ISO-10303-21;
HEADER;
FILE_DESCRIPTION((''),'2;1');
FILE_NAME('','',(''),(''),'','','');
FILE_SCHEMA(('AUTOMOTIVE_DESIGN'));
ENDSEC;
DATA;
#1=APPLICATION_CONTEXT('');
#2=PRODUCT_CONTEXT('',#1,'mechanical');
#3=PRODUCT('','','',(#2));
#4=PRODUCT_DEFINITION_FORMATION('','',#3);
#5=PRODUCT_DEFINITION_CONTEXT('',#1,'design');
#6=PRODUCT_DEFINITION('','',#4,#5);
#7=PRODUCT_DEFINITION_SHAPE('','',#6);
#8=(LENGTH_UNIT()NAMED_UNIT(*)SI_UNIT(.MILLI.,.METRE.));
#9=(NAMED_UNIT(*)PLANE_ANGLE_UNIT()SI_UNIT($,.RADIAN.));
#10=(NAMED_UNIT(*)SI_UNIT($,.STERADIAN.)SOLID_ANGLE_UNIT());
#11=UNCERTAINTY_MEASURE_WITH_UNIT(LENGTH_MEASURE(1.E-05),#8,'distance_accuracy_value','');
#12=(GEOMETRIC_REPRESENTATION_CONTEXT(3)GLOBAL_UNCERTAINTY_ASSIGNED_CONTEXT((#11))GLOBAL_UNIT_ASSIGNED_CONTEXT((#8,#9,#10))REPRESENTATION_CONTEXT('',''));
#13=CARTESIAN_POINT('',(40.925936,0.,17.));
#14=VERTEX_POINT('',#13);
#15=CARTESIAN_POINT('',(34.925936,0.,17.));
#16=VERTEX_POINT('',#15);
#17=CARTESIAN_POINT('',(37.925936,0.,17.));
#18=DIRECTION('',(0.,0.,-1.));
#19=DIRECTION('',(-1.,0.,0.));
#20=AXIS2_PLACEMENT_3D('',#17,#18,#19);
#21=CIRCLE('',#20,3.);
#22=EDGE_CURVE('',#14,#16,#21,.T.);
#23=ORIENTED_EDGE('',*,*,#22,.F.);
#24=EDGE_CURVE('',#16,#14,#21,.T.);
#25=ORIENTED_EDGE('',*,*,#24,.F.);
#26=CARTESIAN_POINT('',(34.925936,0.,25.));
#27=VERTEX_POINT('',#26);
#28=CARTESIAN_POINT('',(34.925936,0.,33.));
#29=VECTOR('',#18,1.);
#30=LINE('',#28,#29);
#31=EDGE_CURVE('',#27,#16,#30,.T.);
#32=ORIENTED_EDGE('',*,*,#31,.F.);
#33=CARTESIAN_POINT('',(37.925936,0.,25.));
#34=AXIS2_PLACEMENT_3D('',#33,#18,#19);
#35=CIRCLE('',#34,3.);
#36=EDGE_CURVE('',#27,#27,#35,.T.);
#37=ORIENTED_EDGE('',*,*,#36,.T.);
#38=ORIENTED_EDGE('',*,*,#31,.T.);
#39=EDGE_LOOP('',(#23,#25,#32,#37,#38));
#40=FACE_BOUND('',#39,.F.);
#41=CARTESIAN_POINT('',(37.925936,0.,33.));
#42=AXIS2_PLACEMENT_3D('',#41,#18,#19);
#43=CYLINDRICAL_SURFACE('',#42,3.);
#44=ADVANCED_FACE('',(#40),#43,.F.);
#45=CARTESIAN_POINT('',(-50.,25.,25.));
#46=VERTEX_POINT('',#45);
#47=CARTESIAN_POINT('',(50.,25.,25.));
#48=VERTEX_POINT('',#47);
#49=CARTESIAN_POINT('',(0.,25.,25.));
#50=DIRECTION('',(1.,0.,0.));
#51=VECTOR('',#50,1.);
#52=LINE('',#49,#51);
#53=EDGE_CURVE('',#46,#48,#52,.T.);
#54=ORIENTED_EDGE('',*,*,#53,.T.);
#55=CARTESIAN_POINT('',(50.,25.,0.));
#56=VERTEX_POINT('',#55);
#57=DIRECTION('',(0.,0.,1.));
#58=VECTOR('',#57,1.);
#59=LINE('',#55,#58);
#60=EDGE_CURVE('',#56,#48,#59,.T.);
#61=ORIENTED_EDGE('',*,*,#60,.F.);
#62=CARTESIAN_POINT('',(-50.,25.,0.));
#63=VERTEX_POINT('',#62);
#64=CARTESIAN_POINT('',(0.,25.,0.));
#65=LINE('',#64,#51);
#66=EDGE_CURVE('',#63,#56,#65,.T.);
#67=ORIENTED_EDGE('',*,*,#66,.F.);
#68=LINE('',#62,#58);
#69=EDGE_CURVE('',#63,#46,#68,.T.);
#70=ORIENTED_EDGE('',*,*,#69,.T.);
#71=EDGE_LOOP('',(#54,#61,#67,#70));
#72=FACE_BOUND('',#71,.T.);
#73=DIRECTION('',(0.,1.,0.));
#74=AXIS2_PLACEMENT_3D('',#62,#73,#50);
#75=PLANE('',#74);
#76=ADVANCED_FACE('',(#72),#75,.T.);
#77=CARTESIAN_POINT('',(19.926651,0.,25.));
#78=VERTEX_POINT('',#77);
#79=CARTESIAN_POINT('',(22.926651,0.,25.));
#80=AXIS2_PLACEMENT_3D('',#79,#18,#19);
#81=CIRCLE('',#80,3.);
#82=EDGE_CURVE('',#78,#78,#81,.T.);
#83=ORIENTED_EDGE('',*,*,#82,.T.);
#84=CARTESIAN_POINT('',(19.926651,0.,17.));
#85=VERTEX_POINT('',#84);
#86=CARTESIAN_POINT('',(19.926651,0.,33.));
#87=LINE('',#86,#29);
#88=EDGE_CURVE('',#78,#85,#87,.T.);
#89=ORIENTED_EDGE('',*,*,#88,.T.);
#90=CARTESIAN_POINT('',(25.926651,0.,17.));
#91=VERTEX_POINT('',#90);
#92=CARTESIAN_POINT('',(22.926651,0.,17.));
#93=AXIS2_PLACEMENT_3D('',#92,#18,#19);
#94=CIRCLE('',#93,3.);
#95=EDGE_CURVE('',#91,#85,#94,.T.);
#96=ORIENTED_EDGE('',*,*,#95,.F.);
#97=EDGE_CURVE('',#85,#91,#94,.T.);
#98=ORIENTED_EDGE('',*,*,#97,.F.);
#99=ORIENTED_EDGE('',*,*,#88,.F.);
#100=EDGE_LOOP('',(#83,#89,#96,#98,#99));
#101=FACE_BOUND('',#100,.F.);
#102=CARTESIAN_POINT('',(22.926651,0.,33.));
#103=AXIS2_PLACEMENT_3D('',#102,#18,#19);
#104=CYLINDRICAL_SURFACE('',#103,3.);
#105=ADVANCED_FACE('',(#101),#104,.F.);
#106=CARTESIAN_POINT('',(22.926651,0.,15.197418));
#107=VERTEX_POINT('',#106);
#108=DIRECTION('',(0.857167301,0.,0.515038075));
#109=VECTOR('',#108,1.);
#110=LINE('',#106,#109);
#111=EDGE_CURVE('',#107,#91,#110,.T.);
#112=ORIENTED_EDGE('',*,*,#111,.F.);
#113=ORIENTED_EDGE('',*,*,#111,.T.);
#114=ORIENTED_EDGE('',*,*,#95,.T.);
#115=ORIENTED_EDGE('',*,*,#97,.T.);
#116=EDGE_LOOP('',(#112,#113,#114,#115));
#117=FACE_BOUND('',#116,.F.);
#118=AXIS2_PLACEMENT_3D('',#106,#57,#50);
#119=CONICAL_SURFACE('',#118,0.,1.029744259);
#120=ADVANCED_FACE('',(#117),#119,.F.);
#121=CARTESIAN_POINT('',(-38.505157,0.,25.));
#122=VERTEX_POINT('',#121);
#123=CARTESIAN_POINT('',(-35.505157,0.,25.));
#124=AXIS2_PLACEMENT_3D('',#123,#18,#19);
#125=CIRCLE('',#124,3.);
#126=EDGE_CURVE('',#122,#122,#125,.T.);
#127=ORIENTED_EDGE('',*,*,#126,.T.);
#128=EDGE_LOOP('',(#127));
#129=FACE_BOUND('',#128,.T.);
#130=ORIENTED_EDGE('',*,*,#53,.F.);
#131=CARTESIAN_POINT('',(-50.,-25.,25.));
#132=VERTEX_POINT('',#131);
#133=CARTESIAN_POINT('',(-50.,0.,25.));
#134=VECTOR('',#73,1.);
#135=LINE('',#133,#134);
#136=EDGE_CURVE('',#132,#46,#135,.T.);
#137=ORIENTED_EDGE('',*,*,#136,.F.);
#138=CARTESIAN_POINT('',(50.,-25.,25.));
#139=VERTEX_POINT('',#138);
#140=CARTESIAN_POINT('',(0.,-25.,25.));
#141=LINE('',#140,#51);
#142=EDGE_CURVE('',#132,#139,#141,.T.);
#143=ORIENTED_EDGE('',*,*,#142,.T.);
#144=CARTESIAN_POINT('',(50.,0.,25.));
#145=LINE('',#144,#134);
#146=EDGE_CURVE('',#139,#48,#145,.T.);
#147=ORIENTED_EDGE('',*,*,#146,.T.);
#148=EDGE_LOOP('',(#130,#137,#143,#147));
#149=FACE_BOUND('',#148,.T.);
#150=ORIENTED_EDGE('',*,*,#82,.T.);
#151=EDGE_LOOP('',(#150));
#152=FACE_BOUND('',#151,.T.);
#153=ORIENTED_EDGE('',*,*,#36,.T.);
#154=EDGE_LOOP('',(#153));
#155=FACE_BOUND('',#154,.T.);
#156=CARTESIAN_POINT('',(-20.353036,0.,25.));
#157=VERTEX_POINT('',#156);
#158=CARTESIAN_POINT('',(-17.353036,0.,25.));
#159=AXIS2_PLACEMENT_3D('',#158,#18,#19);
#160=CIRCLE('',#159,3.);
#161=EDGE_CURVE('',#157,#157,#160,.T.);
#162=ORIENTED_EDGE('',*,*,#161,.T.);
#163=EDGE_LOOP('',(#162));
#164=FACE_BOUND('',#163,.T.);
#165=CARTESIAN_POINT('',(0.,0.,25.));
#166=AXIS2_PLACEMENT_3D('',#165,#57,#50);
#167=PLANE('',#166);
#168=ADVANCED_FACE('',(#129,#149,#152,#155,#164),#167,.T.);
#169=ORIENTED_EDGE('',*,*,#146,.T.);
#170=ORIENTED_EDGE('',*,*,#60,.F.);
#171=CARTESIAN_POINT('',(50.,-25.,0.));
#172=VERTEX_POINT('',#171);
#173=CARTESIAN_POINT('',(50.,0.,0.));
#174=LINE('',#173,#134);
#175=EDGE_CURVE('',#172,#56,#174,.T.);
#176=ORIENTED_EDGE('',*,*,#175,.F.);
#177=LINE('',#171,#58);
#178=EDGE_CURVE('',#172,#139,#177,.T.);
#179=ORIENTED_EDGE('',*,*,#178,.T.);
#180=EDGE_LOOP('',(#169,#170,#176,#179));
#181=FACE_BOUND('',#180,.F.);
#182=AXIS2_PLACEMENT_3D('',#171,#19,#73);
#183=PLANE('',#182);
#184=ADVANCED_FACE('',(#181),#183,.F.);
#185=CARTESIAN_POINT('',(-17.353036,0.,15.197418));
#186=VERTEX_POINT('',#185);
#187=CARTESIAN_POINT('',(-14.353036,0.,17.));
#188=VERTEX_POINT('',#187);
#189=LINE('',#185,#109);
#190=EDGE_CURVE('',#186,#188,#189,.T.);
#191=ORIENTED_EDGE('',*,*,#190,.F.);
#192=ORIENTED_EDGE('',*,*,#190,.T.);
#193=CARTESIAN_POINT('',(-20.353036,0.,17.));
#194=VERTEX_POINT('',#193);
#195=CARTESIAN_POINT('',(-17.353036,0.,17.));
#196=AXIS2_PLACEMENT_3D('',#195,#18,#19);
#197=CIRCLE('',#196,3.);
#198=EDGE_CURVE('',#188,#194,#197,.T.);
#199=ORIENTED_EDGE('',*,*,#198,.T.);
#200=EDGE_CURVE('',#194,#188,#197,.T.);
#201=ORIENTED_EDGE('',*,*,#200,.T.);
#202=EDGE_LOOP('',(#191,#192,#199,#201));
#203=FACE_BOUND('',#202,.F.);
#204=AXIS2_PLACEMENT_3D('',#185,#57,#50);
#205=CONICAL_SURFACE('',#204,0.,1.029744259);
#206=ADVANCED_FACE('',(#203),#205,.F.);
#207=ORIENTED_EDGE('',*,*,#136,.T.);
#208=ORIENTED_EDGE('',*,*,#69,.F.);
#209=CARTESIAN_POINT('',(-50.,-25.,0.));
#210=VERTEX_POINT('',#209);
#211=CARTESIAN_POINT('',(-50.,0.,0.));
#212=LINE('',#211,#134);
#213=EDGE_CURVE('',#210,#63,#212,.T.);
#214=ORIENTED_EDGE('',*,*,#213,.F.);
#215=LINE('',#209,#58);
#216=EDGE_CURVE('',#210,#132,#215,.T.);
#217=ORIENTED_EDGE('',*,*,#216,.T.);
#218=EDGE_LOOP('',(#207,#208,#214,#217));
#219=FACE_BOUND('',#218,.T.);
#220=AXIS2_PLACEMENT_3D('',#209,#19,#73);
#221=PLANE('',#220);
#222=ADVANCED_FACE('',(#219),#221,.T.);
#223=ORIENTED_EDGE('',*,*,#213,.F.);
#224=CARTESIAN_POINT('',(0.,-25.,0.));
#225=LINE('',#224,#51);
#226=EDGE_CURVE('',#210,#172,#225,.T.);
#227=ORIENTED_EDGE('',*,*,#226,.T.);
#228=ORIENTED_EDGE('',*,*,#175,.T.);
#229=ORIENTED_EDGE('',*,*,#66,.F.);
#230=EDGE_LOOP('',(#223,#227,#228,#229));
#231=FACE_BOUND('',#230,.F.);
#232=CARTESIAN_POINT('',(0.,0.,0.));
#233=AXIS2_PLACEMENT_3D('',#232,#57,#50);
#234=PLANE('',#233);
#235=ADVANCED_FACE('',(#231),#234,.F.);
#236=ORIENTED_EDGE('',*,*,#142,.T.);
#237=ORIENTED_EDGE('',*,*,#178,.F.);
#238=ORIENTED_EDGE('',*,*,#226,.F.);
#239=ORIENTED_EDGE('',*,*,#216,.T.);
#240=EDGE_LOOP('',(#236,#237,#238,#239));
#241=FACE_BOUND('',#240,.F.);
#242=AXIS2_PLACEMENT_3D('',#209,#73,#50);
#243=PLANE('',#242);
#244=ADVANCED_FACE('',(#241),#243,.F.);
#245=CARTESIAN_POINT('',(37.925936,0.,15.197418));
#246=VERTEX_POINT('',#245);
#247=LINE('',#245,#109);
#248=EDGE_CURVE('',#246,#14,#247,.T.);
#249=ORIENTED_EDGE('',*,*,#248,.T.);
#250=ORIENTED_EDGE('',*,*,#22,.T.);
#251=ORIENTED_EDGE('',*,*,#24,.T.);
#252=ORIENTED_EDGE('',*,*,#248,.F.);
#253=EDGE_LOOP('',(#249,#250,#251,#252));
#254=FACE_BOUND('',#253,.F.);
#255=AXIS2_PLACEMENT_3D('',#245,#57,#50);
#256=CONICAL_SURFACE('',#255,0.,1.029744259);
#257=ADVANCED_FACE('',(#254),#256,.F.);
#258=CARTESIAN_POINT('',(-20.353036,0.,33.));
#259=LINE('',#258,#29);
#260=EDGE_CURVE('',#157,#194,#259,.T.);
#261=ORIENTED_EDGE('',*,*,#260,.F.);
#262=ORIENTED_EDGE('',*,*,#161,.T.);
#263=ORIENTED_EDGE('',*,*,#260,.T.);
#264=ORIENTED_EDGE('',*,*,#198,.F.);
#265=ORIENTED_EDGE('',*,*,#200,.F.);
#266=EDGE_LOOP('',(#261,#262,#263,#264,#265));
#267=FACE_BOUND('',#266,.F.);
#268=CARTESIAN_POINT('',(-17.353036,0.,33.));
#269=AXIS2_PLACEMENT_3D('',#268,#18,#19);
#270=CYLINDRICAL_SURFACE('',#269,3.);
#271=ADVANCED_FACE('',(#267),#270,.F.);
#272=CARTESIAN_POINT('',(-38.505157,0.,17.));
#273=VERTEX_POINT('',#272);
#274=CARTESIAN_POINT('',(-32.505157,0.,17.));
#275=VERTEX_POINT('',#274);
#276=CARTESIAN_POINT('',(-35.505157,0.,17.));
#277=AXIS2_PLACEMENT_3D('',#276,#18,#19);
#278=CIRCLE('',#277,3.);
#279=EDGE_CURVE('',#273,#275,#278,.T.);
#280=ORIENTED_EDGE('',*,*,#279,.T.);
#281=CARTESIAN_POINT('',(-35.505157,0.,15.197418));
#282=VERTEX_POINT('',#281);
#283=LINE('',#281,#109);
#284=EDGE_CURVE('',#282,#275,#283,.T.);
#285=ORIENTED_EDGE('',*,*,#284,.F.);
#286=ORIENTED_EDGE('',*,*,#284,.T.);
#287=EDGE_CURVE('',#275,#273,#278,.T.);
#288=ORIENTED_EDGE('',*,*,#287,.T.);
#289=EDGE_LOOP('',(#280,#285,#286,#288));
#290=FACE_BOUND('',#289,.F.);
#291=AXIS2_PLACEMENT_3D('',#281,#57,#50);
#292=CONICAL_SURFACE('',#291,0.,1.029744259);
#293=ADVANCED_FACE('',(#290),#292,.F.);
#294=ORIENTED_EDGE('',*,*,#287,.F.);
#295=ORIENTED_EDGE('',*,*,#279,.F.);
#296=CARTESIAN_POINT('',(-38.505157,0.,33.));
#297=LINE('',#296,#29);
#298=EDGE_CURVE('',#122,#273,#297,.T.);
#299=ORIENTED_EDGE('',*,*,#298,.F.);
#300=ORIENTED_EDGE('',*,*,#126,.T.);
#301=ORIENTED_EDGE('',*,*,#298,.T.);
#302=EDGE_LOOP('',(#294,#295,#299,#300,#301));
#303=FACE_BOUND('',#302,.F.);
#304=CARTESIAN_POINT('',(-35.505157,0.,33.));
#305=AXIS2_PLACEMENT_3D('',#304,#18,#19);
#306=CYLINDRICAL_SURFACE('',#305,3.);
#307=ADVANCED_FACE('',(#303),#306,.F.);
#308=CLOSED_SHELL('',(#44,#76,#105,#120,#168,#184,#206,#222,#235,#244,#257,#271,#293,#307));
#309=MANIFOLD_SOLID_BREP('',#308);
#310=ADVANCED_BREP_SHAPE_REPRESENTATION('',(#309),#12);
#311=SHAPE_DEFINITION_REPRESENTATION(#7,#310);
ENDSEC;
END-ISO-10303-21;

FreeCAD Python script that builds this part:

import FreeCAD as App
import Part
import Sketcher

V = App.Vector


def add_polygon(sketch, points):
    """Adds a closed chain of lines whose ends are joined by coincident constraints."""
    first, n = sketch.GeometryCount, len(points)
    for a, b in zip(points, points[1:] + points[:1]):
        sketch.addGeometry(Part.LineSegment(App.Vector(*a, 0), App.Vector(*b, 0)), False)
    for i in range(n):
        sketch.addConstraint(Sketcher.Constraint("Coincident", first + i, 2, first + (i + 1) % n, 1))

doc = App.newDocument("Part")
body = doc.addObject("PartDesign::Body", "Body")

# Sketch on XY plane
sketch1 = body.newObject("Sketcher::SketchObject", "Sketch")
sketch1.AttachmentSupport = (doc.getObject("XY_Plane"), [""])
sketch1.MapMode = "FlatFace"
add_polygon(sketch1, [(-50, 25), (-50, -25), (50, -25), (50, 25)])  # lines 0-3
sketch1.addConstraint(Sketcher.Constraint("Vertical", 0))
sketch1.addConstraint(Sketcher.Constraint("Horizontal", 1))
sketch1.addConstraint(Sketcher.Constraint("Vertical", 2))
sketch1.addConstraint(Sketcher.Constraint("Horizontal", 3))
sketch1.addConstraint(Sketcher.Constraint("Symmetric", 0, 2, 2, 2, -1, 1))
sketch1.addConstraint(Sketcher.Constraint("DistanceX", 1, 1, 1, 2, 100.0))
sketch1.addConstraint(Sketcher.Constraint("DistanceY", 0, 2, 0, 1, 50.0))
pad1 = body.newObject("PartDesign::Pad", "Pad")
pad1.Profile = sketch1
pad1.Length = 25

# Sketch on XY plane
sketch2 = body.newObject("Sketcher::SketchObject", "Sketch001")
sketch2.AttachmentSupport = (doc.getObject("XY_Plane"), [""])
sketch2.MapMode = "FlatFace"
sketch2.AttachmentOffset = App.Placement(V(0, 0, 25), App.Rotation())
sketch2.addGeometry(Part.Circle(V(-35.505157, 0, 0), V(0, 0, 1), 3), False)
sketch2.addGeometry(Part.Circle(V(-17.353036, 0, 0), V(0, 0, 1), 3), False)
sketch2.addGeometry(Part.Circle(V(22.926651, 0, 0), V(0, 0, 1), 3), False)
sketch2.addGeometry(Part.Circle(V(37.925936, 0, 0), V(0, 0, 1), 3), False)
sketch2.addConstraint(Sketcher.Constraint("Equal", 0, 1))
sketch2.addConstraint(Sketcher.Constraint("Equal", 1, 2))
sketch2.addConstraint(Sketcher.Constraint("Equal", 2, 3))
sketch2.addConstraint(Sketcher.Constraint("PointOnObject", 0, 3, -1))
sketch2.addConstraint(Sketcher.Constraint("PointOnObject", 1, 3, -1))
sketch2.addConstraint(Sketcher.Constraint("PointOnObject", 2, 3, -1))
sketch2.addConstraint(Sketcher.Constraint("PointOnObject", 3, 3, -1))
sketch2.addConstraint(Sketcher.Constraint("Diameter", 0, 6.0))
sketch2.addConstraint(Sketcher.Constraint("DistanceX", -1, 1, 2, 3, 22.926651))
sketch2.addConstraint(Sketcher.Constraint("DistanceX", 0, 3, 1, 3, 18.152121))
sketch2.addConstraint(Sketcher.Constraint("DistanceX", 1, 3, 3, 3, 55.278972))
sketch2.addConstraint(Sketcher.Constraint("DistanceX", 0, 3, -1, 1, 35.505157))
doc.recompute()
hole = body.newObject("PartDesign::Hole", "Hole")
hole.Profile = sketch2
hole.ThreadType = "None"
hole.Diameter = 6
hole.DepthType = "Dimension"
hole.Depth = 8
hole.DrillPoint = "Angled"
hole.DrillPointAngle = 118

doc.recompute()
